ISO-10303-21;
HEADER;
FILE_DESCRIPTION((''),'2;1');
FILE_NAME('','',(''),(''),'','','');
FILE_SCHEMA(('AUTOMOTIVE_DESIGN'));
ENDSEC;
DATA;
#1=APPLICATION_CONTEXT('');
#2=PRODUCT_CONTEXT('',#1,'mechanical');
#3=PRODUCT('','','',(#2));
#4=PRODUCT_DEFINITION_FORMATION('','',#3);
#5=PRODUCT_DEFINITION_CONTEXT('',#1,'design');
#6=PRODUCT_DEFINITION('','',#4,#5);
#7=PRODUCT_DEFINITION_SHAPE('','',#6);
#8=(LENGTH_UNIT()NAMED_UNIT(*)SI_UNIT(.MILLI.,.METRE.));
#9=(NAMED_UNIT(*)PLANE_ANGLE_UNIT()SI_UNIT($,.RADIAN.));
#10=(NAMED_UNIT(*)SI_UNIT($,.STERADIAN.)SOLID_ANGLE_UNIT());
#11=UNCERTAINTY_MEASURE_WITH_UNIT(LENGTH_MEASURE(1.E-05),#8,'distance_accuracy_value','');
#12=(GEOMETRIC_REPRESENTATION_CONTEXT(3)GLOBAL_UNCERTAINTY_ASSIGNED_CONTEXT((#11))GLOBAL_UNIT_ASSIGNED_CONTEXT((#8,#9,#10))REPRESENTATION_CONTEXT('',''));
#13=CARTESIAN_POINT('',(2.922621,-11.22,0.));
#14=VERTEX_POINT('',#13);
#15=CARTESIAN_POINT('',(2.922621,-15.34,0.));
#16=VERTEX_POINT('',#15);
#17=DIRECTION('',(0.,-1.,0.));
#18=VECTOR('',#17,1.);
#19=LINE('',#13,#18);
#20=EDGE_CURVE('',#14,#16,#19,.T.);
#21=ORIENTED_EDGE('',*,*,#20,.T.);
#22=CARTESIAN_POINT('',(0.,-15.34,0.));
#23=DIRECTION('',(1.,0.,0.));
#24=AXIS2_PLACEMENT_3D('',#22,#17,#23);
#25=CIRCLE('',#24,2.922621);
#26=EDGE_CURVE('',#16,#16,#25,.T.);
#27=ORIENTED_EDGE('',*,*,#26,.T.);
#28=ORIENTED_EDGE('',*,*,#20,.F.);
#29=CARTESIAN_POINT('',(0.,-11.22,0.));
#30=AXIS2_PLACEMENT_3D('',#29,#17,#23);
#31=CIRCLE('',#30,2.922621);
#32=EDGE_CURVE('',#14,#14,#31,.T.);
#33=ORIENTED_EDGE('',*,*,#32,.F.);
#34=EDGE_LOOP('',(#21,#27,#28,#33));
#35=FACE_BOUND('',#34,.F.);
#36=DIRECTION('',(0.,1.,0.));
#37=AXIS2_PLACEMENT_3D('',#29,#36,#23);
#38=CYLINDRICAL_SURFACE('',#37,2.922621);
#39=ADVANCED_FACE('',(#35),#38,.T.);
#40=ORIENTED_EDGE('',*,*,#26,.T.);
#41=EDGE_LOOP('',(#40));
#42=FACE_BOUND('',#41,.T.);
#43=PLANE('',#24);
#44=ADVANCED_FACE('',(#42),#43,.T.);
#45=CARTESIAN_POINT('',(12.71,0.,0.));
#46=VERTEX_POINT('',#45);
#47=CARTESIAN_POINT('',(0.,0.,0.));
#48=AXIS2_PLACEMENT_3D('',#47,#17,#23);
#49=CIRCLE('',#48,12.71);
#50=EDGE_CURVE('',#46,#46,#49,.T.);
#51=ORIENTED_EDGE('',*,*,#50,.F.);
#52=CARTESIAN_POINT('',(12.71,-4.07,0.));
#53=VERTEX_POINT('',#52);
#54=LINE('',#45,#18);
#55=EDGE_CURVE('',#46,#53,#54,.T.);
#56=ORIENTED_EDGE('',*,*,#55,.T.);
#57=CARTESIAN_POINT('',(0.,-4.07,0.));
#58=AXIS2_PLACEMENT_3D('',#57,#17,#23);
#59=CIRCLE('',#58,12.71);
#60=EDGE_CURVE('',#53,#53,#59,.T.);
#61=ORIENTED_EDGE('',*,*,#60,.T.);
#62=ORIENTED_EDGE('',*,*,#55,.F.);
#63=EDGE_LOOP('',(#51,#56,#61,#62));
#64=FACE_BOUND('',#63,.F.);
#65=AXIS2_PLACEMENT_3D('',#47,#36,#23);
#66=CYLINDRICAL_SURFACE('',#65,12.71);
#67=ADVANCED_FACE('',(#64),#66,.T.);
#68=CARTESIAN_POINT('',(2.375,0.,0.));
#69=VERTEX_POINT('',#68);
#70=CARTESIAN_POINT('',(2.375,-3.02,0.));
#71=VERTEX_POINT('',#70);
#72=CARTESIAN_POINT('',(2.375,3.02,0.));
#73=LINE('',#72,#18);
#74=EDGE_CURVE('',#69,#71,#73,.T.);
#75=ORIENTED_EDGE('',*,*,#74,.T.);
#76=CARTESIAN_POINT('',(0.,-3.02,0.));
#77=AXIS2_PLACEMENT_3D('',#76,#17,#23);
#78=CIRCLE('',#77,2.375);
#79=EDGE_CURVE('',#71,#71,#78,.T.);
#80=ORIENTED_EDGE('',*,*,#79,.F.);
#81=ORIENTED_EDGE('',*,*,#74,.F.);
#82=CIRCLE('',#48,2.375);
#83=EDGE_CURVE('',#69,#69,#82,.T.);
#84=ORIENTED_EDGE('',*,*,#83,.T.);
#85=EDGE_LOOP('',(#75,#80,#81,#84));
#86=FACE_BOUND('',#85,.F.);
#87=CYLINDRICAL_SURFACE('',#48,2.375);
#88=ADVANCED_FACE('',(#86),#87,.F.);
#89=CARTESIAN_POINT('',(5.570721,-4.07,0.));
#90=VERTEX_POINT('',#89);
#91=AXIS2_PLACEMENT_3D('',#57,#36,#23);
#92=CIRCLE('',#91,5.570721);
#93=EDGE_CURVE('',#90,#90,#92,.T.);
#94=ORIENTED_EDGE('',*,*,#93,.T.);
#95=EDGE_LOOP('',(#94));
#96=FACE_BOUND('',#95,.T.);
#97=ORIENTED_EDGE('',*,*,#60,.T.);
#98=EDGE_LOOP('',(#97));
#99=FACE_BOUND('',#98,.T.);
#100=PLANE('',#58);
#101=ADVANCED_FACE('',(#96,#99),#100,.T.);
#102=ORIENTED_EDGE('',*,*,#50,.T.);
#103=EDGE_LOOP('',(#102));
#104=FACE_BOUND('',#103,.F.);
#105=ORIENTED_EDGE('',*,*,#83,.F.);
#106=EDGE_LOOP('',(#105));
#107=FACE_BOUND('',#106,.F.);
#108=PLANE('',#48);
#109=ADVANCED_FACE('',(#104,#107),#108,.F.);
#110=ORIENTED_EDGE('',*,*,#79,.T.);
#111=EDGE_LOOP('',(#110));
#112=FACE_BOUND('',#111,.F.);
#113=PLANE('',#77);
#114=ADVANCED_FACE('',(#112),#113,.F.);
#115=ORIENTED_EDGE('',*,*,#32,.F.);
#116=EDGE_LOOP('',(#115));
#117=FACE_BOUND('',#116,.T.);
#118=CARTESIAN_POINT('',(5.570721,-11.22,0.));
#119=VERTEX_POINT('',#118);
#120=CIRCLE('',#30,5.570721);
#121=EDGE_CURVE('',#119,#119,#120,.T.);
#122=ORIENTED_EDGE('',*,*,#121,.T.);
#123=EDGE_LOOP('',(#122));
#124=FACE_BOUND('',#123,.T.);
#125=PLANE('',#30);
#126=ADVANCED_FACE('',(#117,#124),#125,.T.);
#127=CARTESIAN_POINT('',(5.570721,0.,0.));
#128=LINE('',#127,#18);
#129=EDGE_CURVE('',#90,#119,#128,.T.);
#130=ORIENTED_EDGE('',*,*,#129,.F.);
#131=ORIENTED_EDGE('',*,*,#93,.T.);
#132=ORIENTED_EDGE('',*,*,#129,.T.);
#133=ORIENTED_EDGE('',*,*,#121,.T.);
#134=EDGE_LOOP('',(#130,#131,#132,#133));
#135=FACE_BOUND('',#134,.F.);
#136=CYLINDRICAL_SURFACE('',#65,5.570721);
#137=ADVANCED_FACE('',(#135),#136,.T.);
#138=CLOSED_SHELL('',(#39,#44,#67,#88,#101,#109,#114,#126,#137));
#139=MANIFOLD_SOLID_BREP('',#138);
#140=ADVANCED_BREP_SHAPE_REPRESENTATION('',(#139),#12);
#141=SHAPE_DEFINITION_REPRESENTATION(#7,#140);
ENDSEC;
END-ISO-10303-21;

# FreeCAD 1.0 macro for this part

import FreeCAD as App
import Part
import Sketcher

V = App.Vector

doc = App.newDocument("Part")
params = doc.addObject("Spreadsheet::Sheet", "Params")
for row, (alias, value) in enumerate([
    ("sketch1_diameter", "25.42 mm"),
    ("pad1_length", "4.07 mm"),
    ("pad2_length", "11.22 mm"),
    ("pad3_length", "4.12 mm"),
    ("sketch4_diameter", "4.75 mm"),
    ("pocket1_length", "6.04 mm"),
], start=1):
    params.set(f"A{row}", alias)
    params.set(f"B{row}", "=" + value)
    params.setAlias(f"B{row}", alias)

body = doc.addObject("PartDesign::Body", "Body")

# Sketch on XZ plane
sketch1 = body.newObject("Sketcher::SketchObject", "Sketch")
sketch1.AttachmentSupport = (doc.getObject("XZ_Plane"), [""])
sketch1.MapMode = "FlatFace"
sketch1.addGeometry(Part.Circle(V(0, 0, 0), V(0, 0, 1), 12.71), False)
sketch1.addConstraint([
    Sketcher.Constraint("Coincident", 0, 3, -1, 1),
    Sketcher.Constraint("Diameter", 0, 25.42),
])
sketch1.setExpression("Constraints[1]", "Params.sketch1_diameter")
pad1 = body.newObject("PartDesign::Pad", "Pad")
pad1.Profile = sketch1
pad1.setExpression("Length", "Params.pad1_length")

# Sketch on XZ plane
sketch2 = body.newObject("Sketcher::SketchObject", "Sketch001")
sketch2.AttachmentSupport = (doc.getObject("XZ_Plane"), [""])
sketch2.MapMode = "FlatFace"
sketch2.addGeometry(Part.Circle(V(0, 0, 0), V(0, 0, 1), 5.570721), False)
sketch2.addConstraint([
    Sketcher.Constraint("Coincident", 0, 3, -1, 1),
    Sketcher.Constraint("Diameter", 0, 11.141441),
])
pad2 = body.newObject("PartDesign::Pad", "Pad001")
pad2.Profile = sketch2
pad2.setExpression("Length", "Params.pad2_length")

# Sketch on XZ plane
sketch3 = body.newObject("Sketcher::SketchObject", "Sketch002")
sketch3.AttachmentSupport = (doc.getObject("XZ_Plane"), [""])
sketch3.MapMode = "FlatFace"
sketch3.AttachmentOffset = App.Placement(V(0, 0, 11.22), App.Rotation())
sketch3.addGeometry(Part.Circle(V(0, 0, 0), V(0, 0, 1), 2.922621), False)
sketch3.addConstraint([
    Sketcher.Constraint("Coincident", 0, 3, -1, 1),
    Sketcher.Constraint("Diameter", 0, 5.845242),
])
pad3 = body.newObject("PartDesign::Pad", "Pad002")
pad3.Profile = sketch3
pad3.setExpression("Length", "Params.pad3_length")

# Sketch on XZ plane
sketch4 = body.newObject("Sketcher::SketchObject", "Sketch003")
sketch4.AttachmentSupport = (doc.getObject("XZ_Plane"), [""])
sketch4.MapMode = "FlatFace"
sketch4.addGeometry(Part.Circle(V(0, 0, 0), V(0, 0, 1), 2.375), False)
sketch4.addConstraint([
    Sketcher.Constraint("Coincident", 0, 3, -1, 1),
    Sketcher.Constraint("Diameter", 0, 4.75),
])
sketch4.setExpression("Constraints[1]", "Params.sketch4_diameter")
pocket1 = body.newObject("PartDesign::Pocket", "Pocket")
pocket1.Profile = sketch4
pocket1.setExpression("Length", "Params.pocket1_length")
pocket1.Midplane = True

doc.recompute()
